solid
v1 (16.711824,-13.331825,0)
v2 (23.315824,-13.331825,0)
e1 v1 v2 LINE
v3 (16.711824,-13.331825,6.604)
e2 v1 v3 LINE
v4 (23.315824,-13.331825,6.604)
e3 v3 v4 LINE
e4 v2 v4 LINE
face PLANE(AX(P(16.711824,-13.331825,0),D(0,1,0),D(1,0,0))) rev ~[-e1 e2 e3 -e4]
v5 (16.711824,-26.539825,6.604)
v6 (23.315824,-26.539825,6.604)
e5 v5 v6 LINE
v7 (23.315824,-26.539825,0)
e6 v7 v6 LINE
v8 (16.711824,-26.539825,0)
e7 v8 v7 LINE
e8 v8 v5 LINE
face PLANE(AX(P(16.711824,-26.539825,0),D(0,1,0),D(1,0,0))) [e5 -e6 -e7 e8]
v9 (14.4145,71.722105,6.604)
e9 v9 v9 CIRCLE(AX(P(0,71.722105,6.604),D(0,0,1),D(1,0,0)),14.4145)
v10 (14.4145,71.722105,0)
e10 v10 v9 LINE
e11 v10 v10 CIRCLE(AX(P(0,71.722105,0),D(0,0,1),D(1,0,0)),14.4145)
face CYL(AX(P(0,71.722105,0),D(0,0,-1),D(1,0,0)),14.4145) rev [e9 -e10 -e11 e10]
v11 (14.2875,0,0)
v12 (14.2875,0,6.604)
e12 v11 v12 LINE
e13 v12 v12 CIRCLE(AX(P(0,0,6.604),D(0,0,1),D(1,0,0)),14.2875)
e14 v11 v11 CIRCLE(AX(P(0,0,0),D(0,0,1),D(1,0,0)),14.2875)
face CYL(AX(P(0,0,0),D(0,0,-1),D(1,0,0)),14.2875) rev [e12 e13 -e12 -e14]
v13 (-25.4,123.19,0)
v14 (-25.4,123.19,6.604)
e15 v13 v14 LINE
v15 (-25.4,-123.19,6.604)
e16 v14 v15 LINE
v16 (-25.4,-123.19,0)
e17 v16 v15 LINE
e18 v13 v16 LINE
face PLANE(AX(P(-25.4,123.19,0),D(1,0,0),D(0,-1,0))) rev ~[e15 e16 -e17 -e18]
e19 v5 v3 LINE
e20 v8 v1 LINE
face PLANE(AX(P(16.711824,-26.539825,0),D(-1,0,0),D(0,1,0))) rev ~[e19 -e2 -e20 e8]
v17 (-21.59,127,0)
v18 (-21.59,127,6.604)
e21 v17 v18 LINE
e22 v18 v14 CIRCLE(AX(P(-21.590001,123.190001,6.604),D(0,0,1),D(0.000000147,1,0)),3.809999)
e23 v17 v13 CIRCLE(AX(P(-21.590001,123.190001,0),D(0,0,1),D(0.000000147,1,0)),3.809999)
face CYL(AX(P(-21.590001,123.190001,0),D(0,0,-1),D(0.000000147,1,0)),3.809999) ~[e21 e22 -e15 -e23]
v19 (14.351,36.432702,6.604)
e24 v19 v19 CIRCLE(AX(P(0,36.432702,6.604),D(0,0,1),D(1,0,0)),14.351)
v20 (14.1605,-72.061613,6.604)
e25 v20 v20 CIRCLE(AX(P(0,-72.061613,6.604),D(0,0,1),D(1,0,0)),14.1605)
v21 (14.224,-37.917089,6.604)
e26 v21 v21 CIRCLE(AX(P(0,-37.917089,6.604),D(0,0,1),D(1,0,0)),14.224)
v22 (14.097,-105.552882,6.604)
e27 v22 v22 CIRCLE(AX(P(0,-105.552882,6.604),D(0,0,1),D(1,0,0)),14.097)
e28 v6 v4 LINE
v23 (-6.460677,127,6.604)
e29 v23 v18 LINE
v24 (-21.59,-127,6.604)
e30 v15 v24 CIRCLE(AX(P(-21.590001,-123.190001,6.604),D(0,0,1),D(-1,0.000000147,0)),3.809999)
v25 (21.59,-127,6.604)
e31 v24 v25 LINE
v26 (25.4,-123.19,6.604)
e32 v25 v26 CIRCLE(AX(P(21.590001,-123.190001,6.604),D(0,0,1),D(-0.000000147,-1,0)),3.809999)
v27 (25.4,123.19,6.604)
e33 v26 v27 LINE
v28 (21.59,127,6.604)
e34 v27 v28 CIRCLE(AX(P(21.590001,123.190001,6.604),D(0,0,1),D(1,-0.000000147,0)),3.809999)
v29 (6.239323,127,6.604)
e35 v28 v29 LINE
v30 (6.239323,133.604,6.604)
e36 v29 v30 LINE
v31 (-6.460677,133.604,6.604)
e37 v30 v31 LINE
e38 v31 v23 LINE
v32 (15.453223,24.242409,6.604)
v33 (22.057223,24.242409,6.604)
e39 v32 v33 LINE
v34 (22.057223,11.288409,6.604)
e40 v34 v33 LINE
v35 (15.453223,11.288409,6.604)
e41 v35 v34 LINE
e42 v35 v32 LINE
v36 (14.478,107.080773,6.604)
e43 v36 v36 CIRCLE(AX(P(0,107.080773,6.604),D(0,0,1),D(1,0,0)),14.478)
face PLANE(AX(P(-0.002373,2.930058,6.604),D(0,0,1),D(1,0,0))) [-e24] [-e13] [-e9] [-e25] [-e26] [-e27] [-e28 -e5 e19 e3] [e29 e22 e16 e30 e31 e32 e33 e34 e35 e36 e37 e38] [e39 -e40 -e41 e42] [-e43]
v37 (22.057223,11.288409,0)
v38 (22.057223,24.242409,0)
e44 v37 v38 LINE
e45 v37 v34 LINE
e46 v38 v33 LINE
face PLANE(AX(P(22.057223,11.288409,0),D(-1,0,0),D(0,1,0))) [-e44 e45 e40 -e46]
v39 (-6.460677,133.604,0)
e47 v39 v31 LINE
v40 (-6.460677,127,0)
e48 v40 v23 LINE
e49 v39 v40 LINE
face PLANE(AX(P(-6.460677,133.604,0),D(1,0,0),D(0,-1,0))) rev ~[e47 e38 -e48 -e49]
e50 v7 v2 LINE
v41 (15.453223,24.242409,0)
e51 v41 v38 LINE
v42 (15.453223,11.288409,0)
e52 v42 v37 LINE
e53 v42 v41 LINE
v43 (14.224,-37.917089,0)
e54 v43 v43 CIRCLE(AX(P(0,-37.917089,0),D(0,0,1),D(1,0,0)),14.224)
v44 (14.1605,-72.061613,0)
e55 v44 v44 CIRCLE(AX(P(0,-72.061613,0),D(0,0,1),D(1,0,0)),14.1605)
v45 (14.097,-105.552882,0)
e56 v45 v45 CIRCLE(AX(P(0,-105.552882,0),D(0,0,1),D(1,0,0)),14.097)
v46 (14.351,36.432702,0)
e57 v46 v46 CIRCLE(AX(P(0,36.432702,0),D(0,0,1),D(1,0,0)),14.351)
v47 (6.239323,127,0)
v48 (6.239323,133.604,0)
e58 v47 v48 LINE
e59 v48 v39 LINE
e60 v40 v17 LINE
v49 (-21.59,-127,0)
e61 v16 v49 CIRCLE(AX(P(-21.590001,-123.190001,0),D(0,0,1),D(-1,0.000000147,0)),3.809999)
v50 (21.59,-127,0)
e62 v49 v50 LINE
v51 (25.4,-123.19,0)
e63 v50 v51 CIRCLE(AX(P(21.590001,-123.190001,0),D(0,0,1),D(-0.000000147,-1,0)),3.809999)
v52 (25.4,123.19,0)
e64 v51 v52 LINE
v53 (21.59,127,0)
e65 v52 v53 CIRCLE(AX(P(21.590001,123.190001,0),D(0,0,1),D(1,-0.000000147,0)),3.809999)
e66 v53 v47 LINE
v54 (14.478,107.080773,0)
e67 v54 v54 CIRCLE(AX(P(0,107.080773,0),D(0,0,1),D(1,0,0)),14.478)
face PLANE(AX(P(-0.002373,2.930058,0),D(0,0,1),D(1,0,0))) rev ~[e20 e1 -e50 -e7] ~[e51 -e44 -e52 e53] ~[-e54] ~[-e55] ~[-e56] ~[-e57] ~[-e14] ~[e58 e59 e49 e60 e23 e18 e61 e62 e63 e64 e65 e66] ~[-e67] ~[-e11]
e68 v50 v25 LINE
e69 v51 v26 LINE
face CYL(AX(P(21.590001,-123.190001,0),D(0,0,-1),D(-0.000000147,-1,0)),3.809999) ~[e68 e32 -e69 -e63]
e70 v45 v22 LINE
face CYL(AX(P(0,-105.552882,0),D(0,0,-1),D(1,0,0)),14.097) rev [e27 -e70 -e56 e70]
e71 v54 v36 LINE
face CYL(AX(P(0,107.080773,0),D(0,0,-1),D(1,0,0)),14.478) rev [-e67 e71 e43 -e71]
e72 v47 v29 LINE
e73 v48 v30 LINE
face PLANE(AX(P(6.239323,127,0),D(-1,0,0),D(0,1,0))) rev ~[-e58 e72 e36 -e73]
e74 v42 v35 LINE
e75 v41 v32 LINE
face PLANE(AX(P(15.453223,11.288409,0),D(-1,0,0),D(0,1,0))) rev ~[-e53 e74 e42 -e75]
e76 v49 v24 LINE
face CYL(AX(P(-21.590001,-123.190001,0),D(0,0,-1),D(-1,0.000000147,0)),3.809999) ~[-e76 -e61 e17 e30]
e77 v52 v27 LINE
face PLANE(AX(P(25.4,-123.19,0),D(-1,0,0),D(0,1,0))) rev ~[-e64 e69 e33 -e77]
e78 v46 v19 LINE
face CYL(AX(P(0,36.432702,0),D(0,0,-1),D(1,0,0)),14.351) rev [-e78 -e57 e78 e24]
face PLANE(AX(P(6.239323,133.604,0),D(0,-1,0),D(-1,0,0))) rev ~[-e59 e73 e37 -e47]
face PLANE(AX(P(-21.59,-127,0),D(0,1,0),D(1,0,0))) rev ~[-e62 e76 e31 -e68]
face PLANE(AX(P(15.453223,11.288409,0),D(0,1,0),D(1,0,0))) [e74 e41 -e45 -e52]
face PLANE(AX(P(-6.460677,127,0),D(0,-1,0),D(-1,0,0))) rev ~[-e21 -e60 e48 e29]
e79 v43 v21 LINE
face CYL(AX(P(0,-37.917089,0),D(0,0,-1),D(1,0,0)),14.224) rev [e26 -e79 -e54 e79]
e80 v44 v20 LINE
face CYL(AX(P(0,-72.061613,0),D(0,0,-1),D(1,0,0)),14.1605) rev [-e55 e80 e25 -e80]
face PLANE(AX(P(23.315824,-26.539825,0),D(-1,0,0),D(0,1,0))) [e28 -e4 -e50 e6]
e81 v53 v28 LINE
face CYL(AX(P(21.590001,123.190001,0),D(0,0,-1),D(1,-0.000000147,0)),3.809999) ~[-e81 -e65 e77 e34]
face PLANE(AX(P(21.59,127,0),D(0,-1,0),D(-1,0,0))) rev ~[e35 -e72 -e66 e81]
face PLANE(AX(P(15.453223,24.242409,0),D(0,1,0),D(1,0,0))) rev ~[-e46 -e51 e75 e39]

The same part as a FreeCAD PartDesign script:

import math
import FreeCAD as App
import Part
import Sketcher

V = App.Vector
Q = App.Units.Quantity


def add_polygon(sketch, points):
    """Adds a closed chain of lines whose ends are joined by coincident constraints."""
    first, n = sketch.GeometryCount, len(points)
    for a, b in zip(points, points[1:] + points[:1]):
        sketch.addGeometry(Part.LineSegment(App.Vector(*a, 0), App.Vector(*b, 0)), False)
    for i in range(n):
        sketch.addConstraint(Sketcher.Constraint("Coincident", first + i, 2, first + (i + 1) % n, 1))

doc = App.newDocument("Part")
body = doc.addObject("PartDesign::Body", "Body")

# Sketch on XY plane
sketch1 = body.newObject("Sketcher::SketchObject", "Sketch")
sketch1.AttachmentSupport = (doc.getObject("XY_Plane"), [""])
sketch1.MapMode = "FlatFace"
sketch1.addGeometry(Part.ArcOfCircle(Part.Circle(V(21.6, 123.2, 0), V(0, 0, 1), 3.8), math.radians(0), math.radians(90)), False)  # 0
sketch1.addGeometry(Part.LineSegment(V(21.6, 127, 0), V(6.2, 127, 0)), False)  # 1
sketch1.addGeometry(Part.LineSegment(V(6.2, 127, 0), V(6.2, 133.6, 0)), False)  # 2
sketch1.addGeometry(Part.LineSegment(V(6.2, 133.6, 0), V(-6.5, 133.6, 0)), False)  # 3
sketch1.addGeometry(Part.LineSegment(V(-6.5, 133.6, 0), V(-6.5, 127, 0)), False)  # 4
sketch1.addGeometry(Part.LineSegment(V(-6.5, 127, 0), V(-21.6, 127, 0)), False)  # 5
sketch1.addGeometry(Part.ArcOfCircle(Part.Circle(V(-21.6, 123.2, 0), V(0, 0, 1), 3.8), math.radians(90), math.radians(180)), False)  # 6
sketch1.addGeometry(Part.LineSegment(V(-25.4, 123.2, 0), V(-25.4, -123.2, 0)), False)  # 7
sketch1.addGeometry(Part.ArcOfCircle(Part.Circle(V(-21.6, -123.2, 0), V(0, 0, 1), 3.8), math.radians(180), math.radians(270)), False)  # 8
sketch1.addGeometry(Part.LineSegment(V(-21.6, -127, 0), V(21.6, -127, 0)), False)  # 9
sketch1.addGeometry(Part.ArcOfCircle(Part.Circle(V(21.6, -123.2, 0), V(0, 0, 1), 3.8), math.radians(-90), math.radians(0)), False)  # 10
sketch1.addGeometry(Part.LineSegment(V(25.4, -123.2, 0), V(25.4, 123.2, 0)), False)  # 11
sketch1.addGeometry(Part.Circle(V(0, -105.6, 0), V(0, 0, 1), 14.1), False)  # 12
sketch1.addGeometry(Part.Circle(V(0, -72.1, 0), V(0, 0, 1), 14.2), False)  # 13
sketch1.addGeometry(Part.Circle(V(0, -37.9, 0), V(0, 0, 1), 14.2), False)  # 14
sketch1.addGeometry(Part.Circle(V(0, 0, 0), V(0, 0, 1), 14.3), False)  # 15
add_polygon(sketch1, [(23.3, -26.5), (16.7, -26.5), (16.7, -13.3), (23.3, -13.3)])  # lines 16-19
sketch1.addGeometry(Part.Circle(V(0, 36.4, 0), V(0, 0, 1), 14.4), False)  # 20
sketch1.addGeometry(Part.Circle(V(0, 71.7, 0), V(0, 0, 1), 14.4), False)  # 21
sketch1.addGeometry(Part.Circle(V(0, 107.1, 0), V(0, 0, 1), 14.5), False)  # 22
add_polygon(sketch1, [(22.1, 11.3), (15.5, 11.3), (15.5, 24.2), (22.1, 24.2)])  # lines 23-26
sketch1.addConstraint(Sketcher.Constraint("Tangent", 0, 2, 1, 1))
sketch1.addConstraint(Sketcher.Constraint("Coincident", 1, 2, 2, 1))
sketch1.addConstraint(Sketcher.Constraint("Coincident", 2, 2, 3, 1))
sketch1.addConstraint(Sketcher.Constraint("Coincident", 3, 2, 4, 1))
sketch1.addConstraint(Sketcher.Constraint("Coincident", 4, 2, 5, 1))
sketch1.addConstraint(Sketcher.Constraint("Tangent", 5, 2, 6, 1))
sketch1.addConstraint(Sketcher.Constraint("Tangent", 6, 2, 7, 1))
sketch1.addConstraint(Sketcher.Constraint("Tangent", 7, 2, 8, 1))
sketch1.addConstraint(Sketcher.Constraint("Tangent", 8, 2, 9, 1))
sketch1.addConstraint(Sketcher.Constraint("Tangent", 9, 2, 10, 1))
sketch1.addConstraint(Sketcher.Constraint("Tangent", 10, 2, 11, 1))
sketch1.addConstraint(Sketcher.Constraint("Tangent", 11, 2, 0, 1))
sketch1.addConstraint(Sketcher.Constraint("Horizontal", 1))
sketch1.addConstraint(Sketcher.Constraint("Vertical", 2))
sketch1.addConstraint(Sketcher.Constraint("Horizontal", 3))
sketch1.addConstraint(Sketcher.Constraint("Vertical", 4))
sketch1.addConstraint(Sketcher.Constraint("Horizontal", 5))
sketch1.addConstraint(Sketcher.Constraint("Vertical", 7))
sketch1.addConstraint(Sketcher.Constraint("Horizontal", 9))
sketch1.addConstraint(Sketcher.Constraint("Vertical", 11))
sketch1.addConstraint(Sketcher.Constraint("Horizontal", 16))
sketch1.addConstraint(Sketcher.Constraint("Vertical", 17))
sketch1.addConstraint(Sketcher.Constraint("Horizontal", 18))
sketch1.addConstraint(Sketcher.Constraint("Vertical", 19))
sketch1.addConstraint(Sketcher.Constraint("Horizontal", 23))
sketch1.addConstraint(Sketcher.Constraint("Vertical", 24))
sketch1.addConstraint(Sketcher.Constraint("Horizontal", 25))
sketch1.addConstraint(Sketcher.Constraint("Vertical", 26))
sketch1.addConstraint(Sketcher.Constraint("Coincident", 15, 3, -1, 1))
sketch1.addConstraint(Sketcher.Constraint("Equal", 0, 6))
sketch1.addConstraint(Sketcher.Constraint("Equal", 6, 8))
sketch1.addConstraint(Sketcher.Constraint("Equal", 8, 10))
sketch1.addConstraint(Sketcher.Constraint("Symmetric", 0, 3, 8, 3, -1, 1))
sketch1.addConstraint(Sketcher.Constraint("PointOnObject", 12, 3, -2))
sketch1.addConstraint(Sketcher.Constraint("PointOnObject", 13, 3, -2))
sketch1.addConstraint(Sketcher.Constraint("PointOnObject", 14, 3, -2))
sketch1.addConstraint(Sketcher.Constraint("PointOnObject", 20, 3, -2))
sketch1.addConstraint(Sketcher.Constraint("PointOnObject", 21, 3, -2))
sketch1.addConstraint(Sketcher.Constraint("PointOnObject", 22, 3, -2))
sketch1.addConstraint(Sketcher.Constraint("Horizontal", 0, 3, 6, 3))
sketch1.addConstraint(Sketcher.Constraint("Equal", 18, 23))
sketch1.addConstraint(Sketcher.Constraint("Equal", 25, 2))
sketch1.addConstraint(Sketcher.Constraint("Diameter", 12, Q("1.11 in")))
sketch1.addConstraint(Sketcher.Constraint("Diameter", 14, Q("1.12 in")))
sketch1.addConstraint(Sketcher.Constraint("Diameter", 20, Q("1.13 in")))
sketch1.addConstraint(Sketcher.Constraint("Diameter", 22, Q("1.14 in")))
sketch1.addConstraint(Sketcher.Constraint("Radius", 0, Q("0.15 in")))
sketch1.addConstraint(Sketcher.Constraint("Diameter", 13, Q("1.115 in")))
sketch1.addConstraint(Sketcher.Constraint("Diameter", 15, Q("1.125 in")))
sketch1.addConstraint(Sketcher.Constraint("Diameter", 21, Q("1.135 in")))
sketch1.addConstraint(Sketcher.Constraint("DistanceX", 3, 2, 3, 1, Q("0.5 in")))
sketch1.addConstraint(Sketcher.Constraint("DistanceX", 9, 1, 9, 2, Q("1.7 in")))
sketch1.addConstraint(Sketcher.Constraint("DistanceY", 7, 2, 7, 1, Q("9.7 in")))
sketch1.addConstraint(Sketcher.Constraint("DistanceX", 16, 2, 16, 1, Q("0.26 in")))
sketch1.addConstraint(Sketcher.Constraint("DistanceY", 17, 1, 17, 2, Q("0.52 in")))
sketch1.addConstraint(Sketcher.Constraint("DistanceY", 24, 1, 24, 2, Q("0.51 in")))
sketch1.addConstraint(Sketcher.Constraint("DistanceY", 20, 3, 0, 3, Q("86.757299 mm")))
sketch1.addConstraint(Sketcher.Constraint("DistanceX", 23, 2, 17, 2, Q("1.258601 mm")))
sketch1.addConstraint(Sketcher.Constraint("DistanceX", 1, 2, 1, 1, Q("15.350677 mm")))
sketch1.addConstraint(Sketcher.Constraint("DistanceY", 12, 3, -1, 1, Q("105.552882 mm")))
sketch1.addConstraint(Sketcher.Constraint("DistanceY", 14, 3, -1, 1, Q("37.917089 mm")))
sketch1.addConstraint(Sketcher.Constraint("DistanceY", -1, 1, 23, 2, Q("11.288409 mm")))
sketch1.addConstraint(Sketcher.Constraint("DistanceY", 12, 3, 13, 3, Q("33.491269 mm")))
sketch1.addConstraint(Sketcher.Constraint("DistanceY", 20, 3, 22, 3, Q("70.648071 mm")))
sketch1.addConstraint(Sketcher.Constraint("DistanceY", -1, 1, 21, 3, Q("71.722105 mm")))
sketch1.addConstraint(Sketcher.Constraint("DistanceX", -1, 1, 16, 2, Q("16.711824 mm")))
sketch1.addConstraint(Sketcher.Constraint("DistanceY", 16, 2, -1, 1, Q("26.539825 mm")))
pad1 = body.newObject("PartDesign::Pad", "Pad")
pad1.Profile = sketch1
pad1.Length = Q("0.26 in")

doc.recompute()
